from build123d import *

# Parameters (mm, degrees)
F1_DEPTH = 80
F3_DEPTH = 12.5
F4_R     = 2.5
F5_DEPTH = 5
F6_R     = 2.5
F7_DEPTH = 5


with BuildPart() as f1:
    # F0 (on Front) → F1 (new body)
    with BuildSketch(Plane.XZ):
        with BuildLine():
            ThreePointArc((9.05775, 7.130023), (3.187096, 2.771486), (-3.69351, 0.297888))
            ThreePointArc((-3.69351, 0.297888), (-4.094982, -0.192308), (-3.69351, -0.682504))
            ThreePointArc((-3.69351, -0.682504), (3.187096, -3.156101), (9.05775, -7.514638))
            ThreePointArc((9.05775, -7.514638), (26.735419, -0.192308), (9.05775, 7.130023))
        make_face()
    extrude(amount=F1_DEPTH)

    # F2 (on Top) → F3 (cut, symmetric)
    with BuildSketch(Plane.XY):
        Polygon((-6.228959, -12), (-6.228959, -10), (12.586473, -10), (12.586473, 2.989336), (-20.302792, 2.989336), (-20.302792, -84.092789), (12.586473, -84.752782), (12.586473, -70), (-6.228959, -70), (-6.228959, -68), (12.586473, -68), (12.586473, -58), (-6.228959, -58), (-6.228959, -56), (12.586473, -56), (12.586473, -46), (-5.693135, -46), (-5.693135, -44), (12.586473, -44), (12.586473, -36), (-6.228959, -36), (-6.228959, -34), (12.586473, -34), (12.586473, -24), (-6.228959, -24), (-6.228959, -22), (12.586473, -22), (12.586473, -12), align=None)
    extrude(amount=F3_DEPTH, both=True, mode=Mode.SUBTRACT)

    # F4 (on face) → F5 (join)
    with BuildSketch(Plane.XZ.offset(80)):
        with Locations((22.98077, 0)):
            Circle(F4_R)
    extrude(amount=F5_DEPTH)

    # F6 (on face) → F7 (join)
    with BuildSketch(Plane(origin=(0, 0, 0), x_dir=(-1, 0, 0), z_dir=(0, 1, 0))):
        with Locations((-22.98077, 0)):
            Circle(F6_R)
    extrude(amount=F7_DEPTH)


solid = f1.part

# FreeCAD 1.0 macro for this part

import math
import FreeCAD as App
import Part
import Sketcher
Q = App.Units.Quantity

doc = App.newDocument("Part")
body = doc.addObject("PartDesign::Body", "Body")

# Sketch on XZ plane
sketch1 = body.newObject("Sketcher::SketchObject", "Sketch")
sketch1.AttachmentSupport = (doc.getObject("XZ_Plane"), [""])
sketch1.MapMode = "FlatFace"
sketch1.addGeometry([
    Part.ArcOfCircle(Part.Circle(App.Vector(-8.62, 24.81, 0), App.Vector(0, 0, 1), 25), math.radians(-79), math.radians(-45)),
    Part.ArcOfCircle(Part.Circle(App.Vector(-3.59, -0.19, 0), App.Vector(0, 0, 1), 0.5), math.radians(101), math.radians(259)),
    Part.ArcOfCircle(Part.Circle(App.Vector(-8.62, -25.19, 0), App.Vector(0, 0, 1), 25), math.radians(45), math.radians(79)),
    Part.ArcOfCircle(Part.Circle(App.Vector(16.38, -0.19, 0), App.Vector(0, 0, 1), 10.36), math.radians(-135), math.radians(135)),
], False)
sketch1.addConstraint([
    Sketcher.Constraint("Tangent", 0, 1, 1, 1),
    Sketcher.Constraint("Tangent", 1, 2, 2, 2),
    Sketcher.Constraint("Tangent", 2, 1, 3, 1),
    Sketcher.Constraint("Tangent", 3, 2, 0, 2),
    Sketcher.Constraint("Horizontal", 1, 3, 3, 3),
    Sketcher.Constraint("Vertical", 2, 1, 3, 2),
    Sketcher.Constraint("Radius", 0, Q("25.000001 mm")),
    Sketcher.Constraint("Radius", 1, Q("0.5 mm")),
    Sketcher.Constraint("DistanceY", 1, 3, 0, 3, Q("25 mm")),
    Sketcher.Constraint("DistanceX", 0, 3, 3, 3, Q("25.000001 mm")),
    Sketcher.Constraint("DistanceX", 0, 3, -1, 1, Q("8.619921 mm")),
    Sketcher.Constraint("DistanceY", -1, 1, 0, 3, Q("24.807692 mm")),
])
pad1 = body.newObject("PartDesign::Pad", "Pad")
pad1.Profile = sketch1
pad1.Length = 80

# Sketch on XY plane
sketch2 = body.newObject("Sketcher::SketchObject", "Sketch001")
sketch2.AttachmentSupport = (doc.getObject("XY_Plane"), [""])
sketch2.MapMode = "FlatFace"
sketch2.addGeometry([
    Part.LineSegment(App.Vector(-6.2, -12, 0), App.Vector(-6.2, -10, 0)),  # 0
    Part.LineSegment(App.Vector(-6.2, -10, 0), App.Vector(12.6, -10, 0)),  # 1
    Part.LineSegment(App.Vector(12.6, -10, 0), App.Vector(12.6, 3, 0)),  # 2
    Part.LineSegment(App.Vector(12.6, 3, 0), App.Vector(-20.3, 3, 0)),  # 3
    Part.LineSegment(App.Vector(-20.3, 3, 0), App.Vector(-20.3, -84.1, 0)),  # 4
    Part.LineSegment(App.Vector(-20.3, -84.1, 0), App.Vector(12.6, -84.8, 0)),  # 5
    Part.LineSegment(App.Vector(12.6, -84.8, 0), App.Vector(12.6, -70, 0)),  # 6
    Part.LineSegment(App.Vector(12.6, -70, 0), App.Vector(-6.2, -70, 0)),  # 7
    Part.LineSegment(App.Vector(-6.2, -70, 0), App.Vector(-6.2, -68, 0)),  # 8
    Part.LineSegment(App.Vector(-6.2, -68, 0), App.Vector(12.6, -68, 0)),  # 9
    Part.LineSegment(App.Vector(12.6, -68, 0), App.Vector(12.6, -58, 0)),  # 10
    Part.LineSegment(App.Vector(12.6, -58, 0), App.Vector(-6.2, -58, 0)),  # 11
    Part.LineSegment(App.Vector(-6.2, -58, 0), App.Vector(-6.2, -56, 0)),  # 12
    Part.LineSegment(App.Vector(-6.2, -56, 0), App.Vector(12.6, -56, 0)),  # 13
    Part.LineSegment(App.Vector(12.6, -56, 0), App.Vector(12.6, -46, 0)),  # 14
    Part.LineSegment(App.Vector(12.6, -46, 0), App.Vector(-5.7, -46, 0)),  # 15
    Part.LineSegment(App.Vector(-5.7, -46, 0), App.Vector(-5.7, -44, 0)),  # 16
    Part.LineSegment(App.Vector(-5.7, -44, 0), App.Vector(12.6, -44, 0)),  # 17
    Part.LineSegment(App.Vector(12.6, -44, 0), App.Vector(12.6, -36, 0)),  # 18
    Part.LineSegment(App.Vector(12.6, -36, 0), App.Vector(-6.2, -36, 0)),  # 19
    Part.LineSegment(App.Vector(-6.2, -36, 0), App.Vector(-6.2, -34, 0)),  # 20
    Part.LineSegment(App.Vector(-6.2, -34, 0), App.Vector(12.6, -34, 0)),  # 21
    Part.LineSegment(App.Vector(12.6, -34, 0), App.Vector(12.6, -24, 0)),  # 22
    Part.LineSegment(App.Vector(12.6, -24, 0), App.Vector(-6.2, -24, 0)),  # 23
    Part.LineSegment(App.Vector(-6.2, -24, 0), App.Vector(-6.2, -22, 0)),  # 24
    Part.LineSegment(App.Vector(-6.2, -22, 0), App.Vector(12.6, -22, 0)),  # 25
    Part.LineSegment(App.Vector(12.6, -22, 0), App.Vector(12.6, -12, 0)),  # 26
    Part.LineSegment(App.Vector(12.6, -12, 0), App.Vector(-6.2, -12, 0)),  # 27
], False)
sketch2.addConstraint([
    Sketcher.Constraint("Coincident", 0, 2, 1, 1),
    Sketcher.Constraint("Coincident", 1, 2, 2, 1),
    Sketcher.Constraint("Coincident", 2, 2, 3, 1),
    Sketcher.Constraint("Coincident", 3, 2, 4, 1),
    Sketcher.Constraint("Coincident", 4, 2, 5, 1),
    Sketcher.Constraint("Coincident", 5, 2, 6, 1),
    Sketcher.Constraint("Coincident", 6, 2, 7, 1),
    Sketcher.Constraint("Coincident", 7, 2, 8, 1),
    Sketcher.Constraint("Coincident", 8, 2, 9, 1),
    Sketcher.Constraint("Coincident", 9, 2, 10, 1),
    Sketcher.Constraint("Coincident", 10, 2, 11, 1),
    Sketcher.Constraint("Coincident", 11, 2, 12, 1),
    Sketcher.Constraint("Coincident", 12, 2, 13, 1),
    Sketcher.Constraint("Coincident", 13, 2, 14, 1),
    Sketcher.Constraint("Coincident", 14, 2, 15, 1),
    Sketcher.Constraint("Coincident", 15, 2, 16, 1),
    Sketcher.Constraint("Coincident", 16, 2, 17, 1),
    Sketcher.Constraint("Coincident", 17, 2, 18, 1),
    Sketcher.Constraint("Coincident", 18, 2, 19, 1),
    Sketcher.Constraint("Coincident", 19, 2, 20, 1),
    Sketcher.Constraint("Coincident", 20, 2, 21, 1),
    Sketcher.Constraint("Coincident", 21, 2, 22, 1),
    Sketcher.Constraint("Coincident", 22, 2, 23, 1),
    Sketcher.Constraint("Coincident", 23, 2, 24, 1),
    Sketcher.Constraint("Coincident", 24, 2, 25, 1),
    Sketcher.Constraint("Coincident", 25, 2, 26, 1),
    Sketcher.Constraint("Coincident", 26, 2, 27, 1),
    Sketcher.Constraint("Coincident", 27, 2, 0, 1),
    Sketcher.Constraint("Vertical", 0),
    Sketcher.Constraint("Horizontal", 1),
    Sketcher.Constraint("Vertical", 2),
    Sketcher.Constraint("Horizontal", 3),
    Sketcher.Constraint("Vertical", 4),
    Sketcher.Constraint("Vertical", 6),
    Sketcher.Constraint("Horizontal", 7),
    Sketcher.Constraint("Vertical", 8),
    Sketcher.Constraint("Horizontal", 9),
    Sketcher.Constraint("Vertical", 10),
    Sketcher.Constraint("Horizontal", 11),
    Sketcher.Constraint("Vertical", 12),
    Sketcher.Constraint("Horizontal", 13),
    Sketcher.Constraint("Vertical", 14),
    Sketcher.Constraint("Horizontal", 15),
    Sketcher.Constraint("Vertical", 16),
    Sketcher.Constraint("Horizontal", 17),
    Sketcher.Constraint("Vertical", 18),
    Sketcher.Constraint("Horizontal", 19),
    Sketcher.Constraint("Vertical", 20),
    Sketcher.Constraint("Horizontal", 21),
    Sketcher.Constraint("Vertical", 22),
    Sketcher.Constraint("Horizontal", 23),
    Sketcher.Constraint("Vertical", 24),
    Sketcher.Constraint("Horizontal", 25),
    Sketcher.Constraint("Vertical", 26),
    Sketcher.Constraint("Horizontal", 27),
    Sketcher.Constraint("Vertical", 2, 2, 5, 2),
    Sketcher.Constraint("Vertical", 0, 2, 7, 2),
    Sketcher.Constraint("Vertical", 6, 2, 9, 2),
    Sketcher.Constraint("Vertical", 8, 2, 11, 2),
    Sketcher.Constraint("Vertical", 10, 2, 13, 2),
    Sketcher.Constraint("Vertical", 14, 2, 17, 2),
    Sketcher.Constraint("Vertical", 12, 2, 19, 2),
    Sketcher.Constraint("Vertical", 18, 2, 21, 2),
    Sketcher.Constraint("Vertical", 20, 2, 23, 2),
    Sketcher.Constraint("Vertical", 22, 2, 25, 2),
    Sketcher.Constraint("Equal", 0, 8),
    Sketcher.Constraint("Equal", 8, 12),
    Sketcher.Constraint("Equal", 10, 14),
    Sketcher.Constraint("Equal", 12, 16),
    Sketcher.Constraint("Equal", 16, 20),
    Sketcher.Constraint("Equal", 14, 22),
    Sketcher.Constraint("Equal", 20, 24),
    Sketcher.Constraint("Equal", 22, 26),
    Sketcher.Constraint("DistanceY", 0, 1, 0, 2, Q("2 mm")),
    Sketcher.Constraint("DistanceY", 10, 1, 10, 2, Q("10 mm")),
    Sketcher.Constraint("DistanceY", 18, 1, 18, 2, Q("8 mm")),
    Sketcher.Constraint("DistanceY", 0, 2, -1, 1, Q("10 mm")),
    Sketcher.Constraint("DistanceY", 6, 1, 6, 2, Q("14.752782 mm")),
    Sketcher.Constraint("DistanceX", 1, 1, 1, 2, Q("18.815432 mm")),
    Sketcher.Constraint("DistanceX", 3, 2, 3, 1, Q("32.889265 mm")),
    Sketcher.Constraint("DistanceX", 15, 2, 15, 1, Q("18.279608 mm")),
    Sketcher.Constraint("DistanceY", 2, 1, 2, 2, Q("12.989336 mm")),
    Sketcher.Constraint("DistanceY", 4, 2, 4, 1, Q("87.082125 mm")),
    Sketcher.Constraint("DistanceX", 0, 2, -1, 1, Q("6.228959 mm")),
])
pocket1 = body.newObject("PartDesign::Pocket", "Pocket")
pocket1.Profile = sketch2
pocket1.Length = 25
pocket1.Midplane = True

# Sketch on XZ plane
sketch3 = body.newObject("Sketcher::SketchObject", "Sketch002")
sketch3.AttachmentSupport = (doc.getObject("XZ_Plane"), [""])
sketch3.MapMode = "FlatFace"
sketch3.AttachmentOffset = App.Placement(App.Vector(0, 0, 80), App.Rotation())
sketch3.addGeometry(Part.Circle(App.Vector(23, 0, 0), App.Vector(0, 0, 1), 2.5), False)
sketch3.addConstraint([
    Sketcher.Constraint("PointOnObject", 0, 3, -1),
    Sketcher.Constraint("Diameter", 0, Q("5 mm")),
    Sketcher.Constraint("DistanceX", -1, 1, 0, 3, Q("22.98077 mm")),
])
pad2 = body.newObject("PartDesign::Pad", "Pad001")
pad2.Profile = sketch3
pad2.Length = 5

# Sketch on XZ plane
sketch4 = body.newObject("Sketcher::SketchObject", "Sketch003")
sketch4.AttachmentSupport = (doc.getObject("XZ_Plane"), [""])
sketch4.MapMode = "FlatFace"
sketch4.addGeometry(Part.Circle(App.Vector(23, 0, 0), App.Vector(0, 0, 1), 2.5), False)
sketch4.addConstraint([
    Sketcher.Constraint("PointOnObject", 0, 3, -1),
    Sketcher.Constraint("Diameter", 0, Q("5 mm")),
    Sketcher.Constraint("DistanceX", -1, 1, 0, 3, Q("22.98077 mm")),
])
pad3 = body.newObject("PartDesign::Pad", "Pad002")
pad3.Profile = sketch4
pad3.Length = 5
pad3.Reversed = True

doc.recompute()
